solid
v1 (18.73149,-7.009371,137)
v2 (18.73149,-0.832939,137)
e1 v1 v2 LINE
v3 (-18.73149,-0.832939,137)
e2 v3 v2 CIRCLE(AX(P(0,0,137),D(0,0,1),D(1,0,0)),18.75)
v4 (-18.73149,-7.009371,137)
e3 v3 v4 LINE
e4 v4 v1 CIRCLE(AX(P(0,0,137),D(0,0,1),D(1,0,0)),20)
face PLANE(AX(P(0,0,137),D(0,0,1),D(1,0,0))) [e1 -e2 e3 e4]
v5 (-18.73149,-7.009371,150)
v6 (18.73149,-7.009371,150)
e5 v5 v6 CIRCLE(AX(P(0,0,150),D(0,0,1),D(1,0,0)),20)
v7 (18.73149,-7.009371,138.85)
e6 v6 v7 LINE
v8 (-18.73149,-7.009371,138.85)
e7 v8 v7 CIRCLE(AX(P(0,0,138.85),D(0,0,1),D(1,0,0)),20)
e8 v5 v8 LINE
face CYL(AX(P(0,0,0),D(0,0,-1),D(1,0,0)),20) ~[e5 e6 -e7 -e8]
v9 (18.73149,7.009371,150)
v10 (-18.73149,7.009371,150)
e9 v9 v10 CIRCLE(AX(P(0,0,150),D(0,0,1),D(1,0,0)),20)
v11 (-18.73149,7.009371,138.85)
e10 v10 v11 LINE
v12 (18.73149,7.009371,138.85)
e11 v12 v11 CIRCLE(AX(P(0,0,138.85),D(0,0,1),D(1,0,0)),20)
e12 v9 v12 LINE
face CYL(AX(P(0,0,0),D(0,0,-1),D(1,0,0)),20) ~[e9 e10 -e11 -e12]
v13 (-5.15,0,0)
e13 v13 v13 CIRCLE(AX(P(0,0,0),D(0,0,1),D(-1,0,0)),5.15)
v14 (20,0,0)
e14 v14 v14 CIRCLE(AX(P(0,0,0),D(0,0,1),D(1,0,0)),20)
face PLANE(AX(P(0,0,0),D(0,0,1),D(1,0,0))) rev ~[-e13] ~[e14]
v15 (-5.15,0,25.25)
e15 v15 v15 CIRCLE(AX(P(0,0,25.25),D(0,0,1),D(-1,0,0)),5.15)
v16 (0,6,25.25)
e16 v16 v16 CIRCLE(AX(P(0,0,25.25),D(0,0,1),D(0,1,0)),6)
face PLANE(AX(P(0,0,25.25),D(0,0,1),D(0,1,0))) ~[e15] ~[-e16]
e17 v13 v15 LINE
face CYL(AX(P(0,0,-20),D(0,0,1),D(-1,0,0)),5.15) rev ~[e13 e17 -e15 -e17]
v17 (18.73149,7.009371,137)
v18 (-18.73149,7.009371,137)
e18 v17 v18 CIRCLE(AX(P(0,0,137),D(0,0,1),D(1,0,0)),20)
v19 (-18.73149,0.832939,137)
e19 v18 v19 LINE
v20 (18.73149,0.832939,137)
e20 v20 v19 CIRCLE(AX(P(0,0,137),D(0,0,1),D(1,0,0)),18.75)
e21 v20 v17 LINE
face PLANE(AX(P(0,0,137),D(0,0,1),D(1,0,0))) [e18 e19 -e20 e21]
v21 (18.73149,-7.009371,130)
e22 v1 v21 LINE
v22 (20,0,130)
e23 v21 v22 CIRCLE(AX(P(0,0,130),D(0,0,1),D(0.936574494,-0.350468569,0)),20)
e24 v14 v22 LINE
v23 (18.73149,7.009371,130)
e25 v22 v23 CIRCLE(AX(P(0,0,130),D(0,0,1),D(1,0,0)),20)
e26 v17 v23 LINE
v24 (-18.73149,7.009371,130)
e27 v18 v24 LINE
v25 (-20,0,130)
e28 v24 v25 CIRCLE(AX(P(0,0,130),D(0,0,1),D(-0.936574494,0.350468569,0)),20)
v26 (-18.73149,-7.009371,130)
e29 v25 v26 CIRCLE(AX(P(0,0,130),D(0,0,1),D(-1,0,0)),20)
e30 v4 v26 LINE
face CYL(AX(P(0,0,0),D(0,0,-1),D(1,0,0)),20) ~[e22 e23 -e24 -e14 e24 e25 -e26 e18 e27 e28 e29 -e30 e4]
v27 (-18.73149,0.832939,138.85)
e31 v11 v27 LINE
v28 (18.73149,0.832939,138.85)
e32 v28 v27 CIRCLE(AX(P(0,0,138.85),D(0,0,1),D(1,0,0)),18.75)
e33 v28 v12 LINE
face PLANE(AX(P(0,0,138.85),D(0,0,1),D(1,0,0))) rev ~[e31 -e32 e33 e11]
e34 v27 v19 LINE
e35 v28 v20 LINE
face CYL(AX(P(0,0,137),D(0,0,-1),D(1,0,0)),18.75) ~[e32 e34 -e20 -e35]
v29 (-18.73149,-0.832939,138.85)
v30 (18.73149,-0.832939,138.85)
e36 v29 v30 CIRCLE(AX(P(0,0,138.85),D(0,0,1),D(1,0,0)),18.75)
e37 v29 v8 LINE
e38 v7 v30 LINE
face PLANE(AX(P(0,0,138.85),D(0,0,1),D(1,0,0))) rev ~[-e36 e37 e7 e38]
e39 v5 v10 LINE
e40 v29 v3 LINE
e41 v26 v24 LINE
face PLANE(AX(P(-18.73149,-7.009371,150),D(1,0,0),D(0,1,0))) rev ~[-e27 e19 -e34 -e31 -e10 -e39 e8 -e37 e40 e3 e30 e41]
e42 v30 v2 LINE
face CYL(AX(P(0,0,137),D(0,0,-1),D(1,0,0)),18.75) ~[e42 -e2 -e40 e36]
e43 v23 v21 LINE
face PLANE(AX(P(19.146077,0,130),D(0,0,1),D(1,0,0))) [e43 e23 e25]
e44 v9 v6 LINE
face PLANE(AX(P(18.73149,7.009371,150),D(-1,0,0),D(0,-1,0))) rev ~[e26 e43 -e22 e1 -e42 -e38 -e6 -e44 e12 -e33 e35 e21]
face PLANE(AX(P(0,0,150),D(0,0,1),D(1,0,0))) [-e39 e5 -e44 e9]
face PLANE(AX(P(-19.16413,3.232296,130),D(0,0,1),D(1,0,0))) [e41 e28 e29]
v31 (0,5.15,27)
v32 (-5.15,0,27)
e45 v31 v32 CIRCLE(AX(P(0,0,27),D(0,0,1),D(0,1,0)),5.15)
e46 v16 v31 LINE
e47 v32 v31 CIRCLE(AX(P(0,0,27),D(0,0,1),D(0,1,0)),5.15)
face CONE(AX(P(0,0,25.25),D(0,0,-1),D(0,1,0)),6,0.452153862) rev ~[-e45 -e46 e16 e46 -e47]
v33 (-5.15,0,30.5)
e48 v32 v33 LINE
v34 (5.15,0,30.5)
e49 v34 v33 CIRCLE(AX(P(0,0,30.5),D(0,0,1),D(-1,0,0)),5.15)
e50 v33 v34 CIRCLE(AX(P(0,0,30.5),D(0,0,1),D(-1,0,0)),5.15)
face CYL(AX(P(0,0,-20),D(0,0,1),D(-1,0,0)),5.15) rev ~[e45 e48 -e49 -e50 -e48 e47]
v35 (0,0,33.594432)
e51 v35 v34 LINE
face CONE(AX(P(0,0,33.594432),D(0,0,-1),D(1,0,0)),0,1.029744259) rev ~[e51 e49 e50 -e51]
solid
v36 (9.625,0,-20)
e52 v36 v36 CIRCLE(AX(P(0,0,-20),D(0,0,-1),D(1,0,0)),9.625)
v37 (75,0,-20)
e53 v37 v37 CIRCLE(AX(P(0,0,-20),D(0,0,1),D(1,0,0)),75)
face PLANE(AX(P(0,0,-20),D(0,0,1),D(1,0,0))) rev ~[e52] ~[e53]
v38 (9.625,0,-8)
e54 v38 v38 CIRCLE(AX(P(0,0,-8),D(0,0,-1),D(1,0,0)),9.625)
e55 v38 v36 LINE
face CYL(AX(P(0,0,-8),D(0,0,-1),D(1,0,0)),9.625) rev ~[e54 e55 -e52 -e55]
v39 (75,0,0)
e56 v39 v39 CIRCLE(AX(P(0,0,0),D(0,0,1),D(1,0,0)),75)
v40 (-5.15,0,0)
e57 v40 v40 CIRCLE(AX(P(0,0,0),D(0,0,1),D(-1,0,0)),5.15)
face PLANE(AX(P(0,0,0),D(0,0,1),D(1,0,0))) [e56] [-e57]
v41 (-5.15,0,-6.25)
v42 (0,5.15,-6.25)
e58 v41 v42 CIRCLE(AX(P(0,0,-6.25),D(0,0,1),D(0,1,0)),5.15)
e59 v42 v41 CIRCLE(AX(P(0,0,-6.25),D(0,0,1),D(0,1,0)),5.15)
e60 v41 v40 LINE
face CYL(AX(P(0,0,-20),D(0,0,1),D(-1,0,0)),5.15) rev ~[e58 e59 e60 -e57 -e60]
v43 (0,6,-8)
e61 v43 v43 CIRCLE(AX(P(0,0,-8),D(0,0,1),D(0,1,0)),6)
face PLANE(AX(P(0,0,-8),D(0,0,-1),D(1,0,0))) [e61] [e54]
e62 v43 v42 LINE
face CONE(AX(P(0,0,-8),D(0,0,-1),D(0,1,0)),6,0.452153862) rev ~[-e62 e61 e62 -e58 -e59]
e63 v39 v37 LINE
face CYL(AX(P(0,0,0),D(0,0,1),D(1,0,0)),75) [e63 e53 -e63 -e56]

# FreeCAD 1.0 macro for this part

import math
import FreeCAD as App
import Part
import Sketcher
from FreeCAD import Vector


def add_polygon(sketch, points):
    """Adds a closed chain of lines whose ends are joined by coincident constraints."""
    first, n = sketch.GeometryCount, len(points)
    for a, b in zip(points, points[1:] + points[:1]):
        sketch.addGeometry(Part.LineSegment(App.Vector(*a, 0), App.Vector(*b, 0)), False)
    for i in range(n):
        sketch.addConstraint(Sketcher.Constraint("Coincident", first + i, 2, first + (i + 1) % n, 1))

doc = App.newDocument("Part")
body = doc.addObject("PartDesign::Body", "Body")

# Sketch on XY plane
sketch1 = doc.addObject("Sketcher::SketchObject", "Sketch")
body.addObject(sketch1)
sketch1.AttachmentSupport = (doc.XY_Plane, [""])
sketch1.MapMode = "FlatFace"
sketch1.addGeometry(Part.Circle(Vector(0, 0, 0), Vector(0, 0, 1), 75), False)
sketch1.addConstraint(Sketcher.Constraint("Coincident", 0, 3, -1, 1))
sketch1.addConstraint(Sketcher.Constraint("Diameter", 0, 150.0))
pad1 = doc.addObject("PartDesign::Pad", "Pad")
body.addObject(pad1)
pad1.Profile = sketch1
pad1.Length = 20
pad1.Reversed = True

# Sketch on XY plane
sketch2 = doc.addObject("Sketcher::SketchObject", "Sketch001")
body.addObject(sketch2)
sketch2.AttachmentSupport = (doc.XY_Plane, [""])
sketch2.MapMode = "FlatFace"
sketch2.AttachmentOffset = App.Placement(Vector(0, 0, -20), App.Rotation())
sketch2.addGeometry(Part.Circle(Vector(0, 0, 0), Vector(0, 0, 1), 5), False)
sketch2.addConstraint(Sketcher.Constraint("Coincident", 0, 3, -1, 1))
sketch2.addConstraint(Sketcher.Constraint("Diameter", 0, 10.3))
doc.recompute()
hole = doc.addObject("PartDesign::Hole", "Hole")
body.addObject(hole)
hole.Profile = sketch2
hole.ThreadType = "None"
hole.Diameter = 10.3
hole.DepthType = "Dimension"
hole.Depth = 50.5
hole.DrillPoint = "Angled"
hole.DrillPointAngle = 118
hole.HoleCutType = "Counterbore"
hole.HoleCutDiameter = 19.25
hole.HoleCutDepth = 12
hole.Reversed = True
body2 = doc.addObject("PartDesign::Body", "Body001")

# Sketch on XY plane
sketch3 = doc.addObject("Sketcher::SketchObject", "Sketch002")
body2.addObject(sketch3)
sketch3.AttachmentSupport = (doc.getObject("XY_Plane001"), [""])
sketch3.MapMode = "FlatFace"
sketch3.addGeometry(Part.Circle(Vector(0, 0, 0), Vector(0, 0, 1), 20), False)
sketch3.addConstraint(Sketcher.Constraint("Coincident", 0, 3, -1, 1))
sketch3.addConstraint(Sketcher.Constraint("Diameter", 0, 40.0))
pad2 = doc.addObject("PartDesign::Pad", "Pad001")
body2.addObject(pad2)
pad2.Profile = sketch3
pad2.Length = 150

# Sketch on XY plane
sketch4 = doc.addObject("Sketcher::SketchObject", "Sketch003")
body2.addObject(sketch4)
sketch4.AttachmentSupport = (doc.getObject("XY_Plane001"), [""])
sketch4.MapMode = "FlatFace"
sketch4.AttachmentOffset = App.Placement(Vector(0, 0, -20), App.Rotation())
sketch4.addGeometry(Part.Circle(Vector(0, 0, 0), Vector(0, 0, 1), 5), False)
sketch4.addConstraint(Sketcher.Constraint("Coincident", 0, 3, -1, 1))
sketch4.addConstraint(Sketcher.Constraint("Diameter", 0, 10.3))
doc.recompute()
hole2 = doc.addObject("PartDesign::Hole", "Hole001")
body2.addObject(hole2)
hole2.Profile = sketch4
hole2.ThreadType = "None"
hole2.Diameter = 10.3
hole2.DepthType = "Dimension"
hole2.Depth = 50.5
hole2.DrillPoint = "Angled"
hole2.DrillPointAngle = 118
hole2.HoleCutType = "Counterbore"
hole2.HoleCutDiameter = 19.25
hole2.HoleCutDepth = 12
hole2.Reversed = True
body3 = doc.addObject("PartDesign::Body", "Body002")
body3.AllowCompound = True

# Sketch on YZ plane
sketch5 = doc.addObject("Sketcher::SketchObject", "Sketch004")
body3.addObject(sketch5)
sketch5.AttachmentSupport = (doc.getObject("YZ_Plane002"), [""])
sketch5.MapMode = "FlatFace"
add_polygon(sketch5, [(6, 25.2), (5.2, 27), (5.2, 25.2)])  # lines 0-2
add_polygon(sketch5, [(5.2, -8), (6, -8), (5.2, -6.2)])  # lines 3-5
sketch5.addConstraint(Sketcher.Constraint("Vertical", 1))
sketch5.addConstraint(Sketcher.Constraint("Horizontal", 2))
sketch5.addConstraint(Sketcher.Constraint("Horizontal", 3))
sketch5.addConstraint(Sketcher.Constraint("Vertical", 5))
sketch5.addConstraint(Sketcher.Constraint("Parallel", 0, 4))
sketch5.addConstraint(Sketcher.Constraint("Vertical", 2, 2, 3, 2))
sketch5.addConstraint(Sketcher.Constraint("Vertical", 1, 2, 4, 2))
sketch5.addConstraint(Sketcher.Constraint("DistanceY", -1, 1, 0, 2, 27.0))
sketch5.addConstraint(Sketcher.Constraint("DistanceX", -1, 1, 2, 2, 6.0))
sketch5.addConstraint(Sketcher.Constraint("DistanceY", 3, 2, -1, 1, 8.0))
sketch5.addConstraint(Sketcher.Constraint("DistanceX", 2, 1, 2, 2, 0.85))
sketch5.addConstraint(Sketcher.Constraint("DistanceY", 1, 2, 1, 1, 1.75))
revolution = doc.addObject("PartDesign::Revolution", "Revolution")
body3.addObject(revolution)
revolution.Profile = sketch5
revolution.ReferenceAxis = (sketch5, ["V_Axis"])
revolution.Angle = 360
doc.recompute()

body4 = doc.addObject("PartDesign::Body", "Body003")
body4.BaseFeature = body3
boolean = doc.addObject("PartDesign::Boolean", "Boolean")
body.addObject(boolean)
boolean.Type = "Cut"
boolean.addObjects([body4])
doc.recompute()

boolean2 = doc.addObject("PartDesign::Boolean", "Boolean001")
body2.addObject(boolean2)
boolean2.Type = "Cut"
boolean2.addObjects([body3])

# Sketch on XY plane
sketch6 = doc.addObject("Sketcher::SketchObject", "Sketch005")
body2.addObject(sketch6)
sketch6.AttachmentSupport = (doc.getObject("XY_Plane001"), [""])
sketch6.MapMode = "FlatFace"
sketch6.AttachmentOffset = App.Placement(Vector(0, 0, 150), App.Rotation())
sketch6.addGeometry(Part.ArcOfCircle(Part.Circle(Vector(0, 0, 0), Vector(0, 0, 1), 20), math.radians(159), math.radians(180)), False)
sketch6.addGeometry(Part.ArcOfCircle(Part.Circle(Vector(0, 0, 0), Vector(0, 0, 1), 20), math.radians(180), math.radians(201)), False)
sketch6.addGeometry(Part.LineSegment(Vector(-19, -7, 0), Vector(-19, 7, 0)), False)
sketch6.addGeometry(Part.ArcOfCircle(Part.Circle(Vector(0, 0, 0), Vector(0, 0, 1), 20), math.radians(0), math.radians(21)), False)
sketch6.addGeometry(Part.LineSegment(Vector(19, 7, 0), Vector(19, -7, 0)), False)
sketch6.addGeometry(Part.ArcOfCircle(Part.Circle(Vector(0, 0, 0), Vector(0, 0, 1), 20), math.radians(-21), math.radians(0)), False)
sketch6.addConstraint(Sketcher.Constraint("Tangent", 0, 2, 1, 1))
sketch6.addConstraint(Sketcher.Constraint("Coincident", 1, 2, 2, 1))
sketch6.addConstraint(Sketcher.Constraint("Coincident", 2, 2, 0, 1))
sketch6.addConstraint(Sketcher.Constraint("Coincident", 3, 2, 4, 1))
sketch6.addConstraint(Sketcher.Constraint("Coincident", 4, 2, 5, 1))
sketch6.addConstraint(Sketcher.Constraint("Tangent", 5, 2, 3, 1))
sketch6.addConstraint(Sketcher.Constraint("Vertical", 2))
sketch6.addConstraint(Sketcher.Constraint("Vertical", 4))
sketch6.addConstraint(Sketcher.Constraint("Coincident", 0, 3, -1, 1))
sketch6.addConstraint(Sketcher.Constraint("Coincident", 3, 3, -1, 1))
sketch6.addConstraint(Sketcher.Constraint("Equal", 0, 1))
sketch6.addConstraint(Sketcher.Constraint("Equal", 1, 3))
sketch6.addConstraint(Sketcher.Constraint("Equal", 3, 5))
sketch6.addConstraint(Sketcher.Constraint("PointOnObject", 0, 2, -1))
sketch6.addConstraint(Sketcher.Constraint("PointOnObject", 5, 2, -1))
sketch6.addConstraint(Sketcher.Constraint("Horizontal", 2, 2, 3, 2))
sketch6.addConstraint(Sketcher.Constraint("Radius", 0, 20.0))
sketch6.addConstraint(Sketcher.Constraint("DistanceY", 2, 1, 2, 2, 14.018743))
pocket1 = doc.addObject("PartDesign::Pocket", "Pocket")
body2.addObject(pocket1)
pocket1.Profile = sketch6
pocket1.Length = 20

# Sketch on XY plane
sketch7 = doc.addObject("Sketcher::SketchObject", "Sketch006")
body2.addObject(sketch7)
sketch7.AttachmentSupport = (doc.getObject("XY_Plane001"), [""])
sketch7.MapMode = "FlatFace"
sketch7.AttachmentOffset = App.Placement(Vector(0, 0, 137), App.Rotation())
sketch7.addGeometry(Part.Circle(Vector(0, 0, 0), Vector(0, 0, 1), 20), False)
sketch7.addGeometry(Part.Circle(Vector(0, 0, 0), Vector(0, 0, 1), 19), False)
sketch7.addConstraint(Sketcher.Constraint("Coincident", 0, 3, -1, 1))
sketch7.addConstraint(Sketcher.Constraint("Coincident", 1, 3, -1, 1))
sketch7.addConstraint(Sketcher.Constraint("Diameter", 0, 40.0))
sketch7.addConstraint(Sketcher.Constraint("Diameter", 1, 37.5))
pocket2 = doc.addObject("PartDesign::Pocket", "Pocket001")
body2.addObject(pocket2)
pocket2.Profile = sketch7
pocket2.Length = 1.85
pocket2.Reversed = True

doc.recompute()
